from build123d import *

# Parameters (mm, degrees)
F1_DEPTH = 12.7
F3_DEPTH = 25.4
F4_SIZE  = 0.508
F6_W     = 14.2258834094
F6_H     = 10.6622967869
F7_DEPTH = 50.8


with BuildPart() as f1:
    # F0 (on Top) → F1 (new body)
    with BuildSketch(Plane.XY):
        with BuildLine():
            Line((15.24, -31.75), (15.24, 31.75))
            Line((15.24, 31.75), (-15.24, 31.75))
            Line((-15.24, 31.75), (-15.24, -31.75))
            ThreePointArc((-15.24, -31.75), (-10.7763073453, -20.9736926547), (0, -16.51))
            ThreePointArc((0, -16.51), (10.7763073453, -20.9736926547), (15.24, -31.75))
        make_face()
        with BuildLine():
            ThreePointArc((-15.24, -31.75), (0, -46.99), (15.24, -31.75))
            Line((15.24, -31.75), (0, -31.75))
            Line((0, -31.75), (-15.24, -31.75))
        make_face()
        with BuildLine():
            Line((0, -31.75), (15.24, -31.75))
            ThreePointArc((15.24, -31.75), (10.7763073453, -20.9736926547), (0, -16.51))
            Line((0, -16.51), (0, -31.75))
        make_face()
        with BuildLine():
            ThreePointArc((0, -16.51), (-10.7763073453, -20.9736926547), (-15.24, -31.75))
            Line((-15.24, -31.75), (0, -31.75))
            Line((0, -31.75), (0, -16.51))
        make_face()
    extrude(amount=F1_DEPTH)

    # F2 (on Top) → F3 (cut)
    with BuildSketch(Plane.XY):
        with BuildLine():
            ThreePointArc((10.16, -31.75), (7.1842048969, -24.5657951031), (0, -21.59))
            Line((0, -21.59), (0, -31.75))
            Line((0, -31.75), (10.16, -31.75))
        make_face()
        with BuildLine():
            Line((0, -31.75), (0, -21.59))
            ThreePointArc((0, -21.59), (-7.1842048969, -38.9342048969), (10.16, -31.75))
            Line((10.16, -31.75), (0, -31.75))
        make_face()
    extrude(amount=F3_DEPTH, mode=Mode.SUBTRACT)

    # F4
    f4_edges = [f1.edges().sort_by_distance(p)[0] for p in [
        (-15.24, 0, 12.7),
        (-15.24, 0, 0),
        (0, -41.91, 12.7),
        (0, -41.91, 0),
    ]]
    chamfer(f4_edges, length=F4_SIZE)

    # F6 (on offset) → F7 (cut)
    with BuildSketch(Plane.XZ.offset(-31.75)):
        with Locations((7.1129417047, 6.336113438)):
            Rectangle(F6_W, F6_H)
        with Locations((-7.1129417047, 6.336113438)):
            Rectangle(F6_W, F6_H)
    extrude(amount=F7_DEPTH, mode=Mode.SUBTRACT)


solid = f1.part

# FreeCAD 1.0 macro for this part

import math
import FreeCAD as App
import Part
import Sketcher
from FreeCAD import Vector
Q = App.Units.Quantity


def edges_at(feature, points):
    """Names of the edges that pass closest to the given points."""
    edges = feature.Shape.Edges
    near = lambda p: min(range(len(edges)), key=lambda i: edges[i].distToShape(Part.Vertex(*p))[0])
    return sorted({f"Edge{near(p) + 1}" for p in points})


def add_polygon(sketch, points):
    """Adds a closed chain of lines whose ends are joined by coincident constraints."""
    first, n = sketch.GeometryCount, len(points)
    for a, b in zip(points, points[1:] + points[:1]):
        sketch.addGeometry(Part.LineSegment(App.Vector(*a, 0), App.Vector(*b, 0)), False)
    for i in range(n):
        sketch.addConstraint(Sketcher.Constraint("Coincident", first + i, 2, first + (i + 1) % n, 1))

doc = App.newDocument("Part")
body = doc.addObject("PartDesign::Body", "Body")

sketch1 = doc.addObject("Sketcher::SketchObject", "Sketch")
body.addObject(sketch1)
sketch1.AttachmentSupport = (doc.XY_Plane, [""])
sketch1.MapMode = "FlatFace"
sketch1.addGeometry([
    Part.LineSegment(Vector(-15.24, 31.75, 0), Vector(-15.24, -31.75, 0)),
    Part.ArcOfCircle(Part.Circle(Vector(0, -31.75, 0), Vector(0, 0, 1), 15.24), math.radians(180), math.radians(360)),
    Part.LineSegment(Vector(15.24, -31.75, 0), Vector(15.24, 31.75, 0)),
    Part.LineSegment(Vector(15.24, 31.75, 0), Vector(-15.24, 31.75, 0)),
], False)
sketch1.addConstraint([
    Sketcher.Constraint("Tangent", 0, 2, 1, 1),
    Sketcher.Constraint("Tangent", 1, 2, 2, 1),
    Sketcher.Constraint("Coincident", 2, 2, 3, 1),
    Sketcher.Constraint("Coincident", 3, 2, 0, 1),
    Sketcher.Constraint("Vertical", 0),
    Sketcher.Constraint("Vertical", 2),
    Sketcher.Constraint("Horizontal", 3),
    Sketcher.Constraint("Symmetric", 0, 2, 2, 2, -1, 1),
    Sketcher.Constraint("Radius", 1, Q("0.6 in")),
    Sketcher.Constraint("DistanceY", 0, 2, 0, 1, Q("2.5 in")),
])
pad1 = doc.addObject("PartDesign::Pad", "Pad")
body.addObject(pad1)
pad1.Profile = sketch1
pad1.Length = Q("0.5 in")

sketch2 = doc.addObject("Sketcher::SketchObject", "Sketch001")
body.addObject(sketch2)
sketch2.AttachmentSupport = (doc.XY_Plane, [""])
sketch2.MapMode = "FlatFace"
sketch2.addGeometry([
    Part.ArcOfCircle(Part.Circle(Vector(0, -31.75, 0), Vector(0, 0, 1), 10.16), math.radians(0), math.radians(90)),
    Part.ArcOfCircle(Part.Circle(Vector(0, -31.75, 0), Vector(0, 0, 1), 10.16), math.radians(90), math.radians(360)),
], False)
sketch2.addConstraint([
    Sketcher.Constraint("Tangent", 0, 1, 1, 2),
    Sketcher.Constraint("Coincident", 1, 1, 0, 2),
    Sketcher.Constraint("PointOnObject", 0, 3, -2),
    Sketcher.Constraint("PointOnObject", 1, 1, -2),
    Sketcher.Constraint("Horizontal", 1, 3, 0, 1),
    Sketcher.Constraint("Radius", 0, Q("0.4 in")),
    Sketcher.Constraint("DistanceY", 0, 3, -1, 1, Q("1.25 in")),
])
pocket1 = doc.addObject("PartDesign::Pocket", "Pocket")
body.addObject(pocket1)
pocket1.Profile = sketch2
pocket1.Length = Q("1 in")
pocket1.Reversed = True
doc.recompute()

chamfer = doc.addObject("PartDesign::Chamfer", "Chamfer")
body.addObject(chamfer)
chamfer.Base = (pocket1, edges_at(pocket1, [
    (-15.24, 0, 12.7),
    (-15.24, 0, 0),
    (-7.184, -38.934, 12.7),
    (-7.184, -38.934, 0),
]))
chamfer.Size = Q("0.02 in")

sketch3 = doc.addObject("Sketcher::SketchObject", "Sketch002")
body.addObject(sketch3)
sketch3.AttachmentSupport = (doc.XZ_Plane, [""])
sketch3.MapMode = "FlatFace"
sketch3.AttachmentOffset = App.Placement(Vector(0, 0, -1.25 * 25.4), App.Rotation())
add_polygon(sketch3, [(14.225883, 1.004965), (14.225883, 11.667262), (-14.225883, 11.667262), (-14.225883, 1.004965)])
sketch3.addConstraint([
    Sketcher.Constraint("Vertical", 0),
    Sketcher.Constraint("Horizontal", 1),
    Sketcher.Constraint("Vertical", 2),
    Sketcher.Constraint("Horizontal", 3),
    Sketcher.Constraint("DistanceX", 1, 2, 1, 1, Q("28.451767 mm")),
    Sketcher.Constraint("DistanceY", 0, 1, 0, 2, Q("10.662297 mm")),
    Sketcher.Constraint("DistanceY", -1, 1, 0, 2, Q("11.667262 mm")),
    Sketcher.Constraint("DistanceX", -1, 1, 0, 2, Q("14.225883 mm")),
])
pocket2 = doc.addObject("PartDesign::Pocket", "Pocket001")
body.addObject(pocket2)
pocket2.Profile = sketch3
pocket2.Length = Q("2 in")
pocket2.Reversed = True

doc.recompute()
